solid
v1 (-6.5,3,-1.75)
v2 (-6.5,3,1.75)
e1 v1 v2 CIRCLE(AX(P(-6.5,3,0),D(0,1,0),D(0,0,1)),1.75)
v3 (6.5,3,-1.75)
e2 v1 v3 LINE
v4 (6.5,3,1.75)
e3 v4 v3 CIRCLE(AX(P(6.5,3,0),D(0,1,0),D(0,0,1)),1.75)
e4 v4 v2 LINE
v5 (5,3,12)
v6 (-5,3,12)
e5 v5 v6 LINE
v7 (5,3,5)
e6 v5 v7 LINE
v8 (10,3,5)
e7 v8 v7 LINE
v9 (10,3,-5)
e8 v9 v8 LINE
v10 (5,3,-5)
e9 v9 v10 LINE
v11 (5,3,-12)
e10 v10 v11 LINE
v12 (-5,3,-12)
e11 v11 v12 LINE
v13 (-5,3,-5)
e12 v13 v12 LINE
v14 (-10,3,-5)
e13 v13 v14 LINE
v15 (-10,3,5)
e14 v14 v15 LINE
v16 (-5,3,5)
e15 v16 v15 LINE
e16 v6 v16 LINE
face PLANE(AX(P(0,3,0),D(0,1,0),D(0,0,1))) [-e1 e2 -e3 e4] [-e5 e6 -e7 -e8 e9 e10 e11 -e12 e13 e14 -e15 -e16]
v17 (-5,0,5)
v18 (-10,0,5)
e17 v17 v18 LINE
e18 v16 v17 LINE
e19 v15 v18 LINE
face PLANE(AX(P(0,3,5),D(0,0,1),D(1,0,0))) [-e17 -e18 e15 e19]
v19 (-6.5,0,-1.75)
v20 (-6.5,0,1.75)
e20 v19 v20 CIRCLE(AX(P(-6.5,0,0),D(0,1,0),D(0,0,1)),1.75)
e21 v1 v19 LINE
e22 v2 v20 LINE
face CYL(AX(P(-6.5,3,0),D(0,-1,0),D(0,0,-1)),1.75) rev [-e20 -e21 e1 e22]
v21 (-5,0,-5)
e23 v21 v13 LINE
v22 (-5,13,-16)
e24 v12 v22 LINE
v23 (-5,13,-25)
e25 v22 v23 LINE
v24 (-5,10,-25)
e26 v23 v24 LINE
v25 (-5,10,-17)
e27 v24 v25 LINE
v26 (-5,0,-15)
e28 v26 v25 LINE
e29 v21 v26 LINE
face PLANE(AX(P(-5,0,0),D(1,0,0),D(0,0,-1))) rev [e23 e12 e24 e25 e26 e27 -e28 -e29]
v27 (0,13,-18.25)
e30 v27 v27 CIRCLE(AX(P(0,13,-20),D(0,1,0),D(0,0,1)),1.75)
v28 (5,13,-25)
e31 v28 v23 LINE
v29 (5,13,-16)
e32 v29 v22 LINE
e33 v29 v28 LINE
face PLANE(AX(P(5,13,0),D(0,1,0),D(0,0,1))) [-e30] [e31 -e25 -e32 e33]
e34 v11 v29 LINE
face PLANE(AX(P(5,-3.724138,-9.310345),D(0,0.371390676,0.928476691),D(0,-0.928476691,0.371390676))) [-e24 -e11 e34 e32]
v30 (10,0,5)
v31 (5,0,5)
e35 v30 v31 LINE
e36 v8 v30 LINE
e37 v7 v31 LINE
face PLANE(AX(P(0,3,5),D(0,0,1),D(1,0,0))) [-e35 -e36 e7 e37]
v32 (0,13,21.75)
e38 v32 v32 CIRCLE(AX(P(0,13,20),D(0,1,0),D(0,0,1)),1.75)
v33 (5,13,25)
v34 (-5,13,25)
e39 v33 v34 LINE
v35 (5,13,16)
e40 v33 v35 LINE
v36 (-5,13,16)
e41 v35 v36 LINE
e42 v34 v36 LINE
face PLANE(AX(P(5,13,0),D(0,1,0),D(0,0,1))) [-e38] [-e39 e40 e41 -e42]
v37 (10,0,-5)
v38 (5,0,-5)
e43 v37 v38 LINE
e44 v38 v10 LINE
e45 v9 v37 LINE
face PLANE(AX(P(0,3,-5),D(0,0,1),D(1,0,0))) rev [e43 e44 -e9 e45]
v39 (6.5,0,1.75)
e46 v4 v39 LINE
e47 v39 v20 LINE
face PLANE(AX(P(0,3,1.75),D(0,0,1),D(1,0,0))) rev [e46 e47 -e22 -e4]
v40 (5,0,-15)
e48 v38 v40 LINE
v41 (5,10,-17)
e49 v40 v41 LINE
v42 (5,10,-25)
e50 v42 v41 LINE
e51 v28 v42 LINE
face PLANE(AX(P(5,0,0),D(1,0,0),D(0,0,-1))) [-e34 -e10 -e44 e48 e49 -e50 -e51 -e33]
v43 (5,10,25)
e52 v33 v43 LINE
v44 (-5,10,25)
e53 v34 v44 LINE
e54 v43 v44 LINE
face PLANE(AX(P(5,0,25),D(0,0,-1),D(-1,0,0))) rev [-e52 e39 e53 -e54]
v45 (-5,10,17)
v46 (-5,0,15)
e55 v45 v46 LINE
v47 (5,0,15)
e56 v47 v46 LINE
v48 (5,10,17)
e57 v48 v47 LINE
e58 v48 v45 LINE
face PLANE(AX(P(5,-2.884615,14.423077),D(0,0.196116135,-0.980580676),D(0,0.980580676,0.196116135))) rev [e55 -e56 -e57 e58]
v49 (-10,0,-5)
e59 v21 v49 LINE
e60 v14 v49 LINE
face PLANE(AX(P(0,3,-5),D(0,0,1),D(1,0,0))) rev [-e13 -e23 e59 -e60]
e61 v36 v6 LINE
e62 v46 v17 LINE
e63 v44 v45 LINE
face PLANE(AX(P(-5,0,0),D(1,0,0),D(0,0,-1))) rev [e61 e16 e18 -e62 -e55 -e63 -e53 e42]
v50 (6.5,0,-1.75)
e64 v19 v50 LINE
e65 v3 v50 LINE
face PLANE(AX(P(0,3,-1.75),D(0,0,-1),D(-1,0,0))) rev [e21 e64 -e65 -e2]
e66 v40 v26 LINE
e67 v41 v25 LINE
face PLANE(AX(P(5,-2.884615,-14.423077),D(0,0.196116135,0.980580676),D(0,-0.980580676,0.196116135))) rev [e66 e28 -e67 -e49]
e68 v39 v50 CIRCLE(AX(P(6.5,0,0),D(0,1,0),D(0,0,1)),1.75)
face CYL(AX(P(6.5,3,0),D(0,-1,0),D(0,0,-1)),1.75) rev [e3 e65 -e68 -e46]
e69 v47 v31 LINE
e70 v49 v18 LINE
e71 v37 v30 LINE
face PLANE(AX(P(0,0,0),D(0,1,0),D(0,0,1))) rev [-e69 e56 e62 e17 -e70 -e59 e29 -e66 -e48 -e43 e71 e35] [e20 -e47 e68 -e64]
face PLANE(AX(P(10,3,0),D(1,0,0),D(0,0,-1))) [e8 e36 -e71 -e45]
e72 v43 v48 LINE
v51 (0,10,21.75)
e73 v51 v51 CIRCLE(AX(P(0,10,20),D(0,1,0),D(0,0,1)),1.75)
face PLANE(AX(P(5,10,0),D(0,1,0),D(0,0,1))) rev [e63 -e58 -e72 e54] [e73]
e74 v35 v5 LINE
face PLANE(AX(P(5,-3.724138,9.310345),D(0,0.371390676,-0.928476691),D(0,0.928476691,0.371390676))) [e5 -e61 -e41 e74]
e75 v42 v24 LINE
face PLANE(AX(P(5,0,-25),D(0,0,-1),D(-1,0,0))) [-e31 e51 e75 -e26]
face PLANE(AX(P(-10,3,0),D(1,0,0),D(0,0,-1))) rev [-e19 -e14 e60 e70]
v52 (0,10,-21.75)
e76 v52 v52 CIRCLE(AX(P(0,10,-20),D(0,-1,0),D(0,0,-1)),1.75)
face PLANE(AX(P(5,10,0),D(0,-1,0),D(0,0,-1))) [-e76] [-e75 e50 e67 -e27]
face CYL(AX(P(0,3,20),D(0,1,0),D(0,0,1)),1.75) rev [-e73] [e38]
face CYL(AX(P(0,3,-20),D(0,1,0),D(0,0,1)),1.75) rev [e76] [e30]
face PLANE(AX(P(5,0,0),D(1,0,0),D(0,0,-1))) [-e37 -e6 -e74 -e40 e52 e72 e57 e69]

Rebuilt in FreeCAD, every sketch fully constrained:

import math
import FreeCAD as App
import Part
import Sketcher
from FreeCAD import Vector

doc = App.newDocument("Part")
params = doc.addObject("Spreadsheet::Sheet", "Params")
for row, (alias, value) in enumerate([
    ("sketch1_width", "20 mm"),
    ("sketch1_width2", "13 mm"),
    ("sketch1_height", "10 mm"),
    ("sketch1_radius", "1.75 mm"),
    ("pad1_length", "3 mm"),
    ("sketch2_width", "3 mm"),
    ("sketch2_height", "8 mm"),
    ("sketch2_height2", "10 mm"),
    ("sketch2_height3", "7 mm"),
    ("sketch2_height4", "9 mm"),
    ("pad2_length", "10 mm"),
    ("sketch3_diameter", "3.5 mm"),
    ("pocket1_length", "10 mm"),
], start=1):
    params.set(f"A{row}", alias)
    params.set(f"B{row}", "=" + value)
    params.setAlias(f"B{row}", alias)

body = doc.addObject("PartDesign::Body", "Body")

sketch1 = body.newObject("Sketcher::SketchObject", "Sketch")
sketch1.AttachmentSupport = (doc.getObject("XZ_Plane"), [""])
sketch1.MapMode = "FlatFace"
sketch1.addGeometry(Part.LineSegment(Vector(-10, -5, 0), Vector(-10, 5, 0)), False)
sketch1.addGeometry(Part.LineSegment(Vector(-10, 5, 0), Vector(10, 5, 0)), False)
sketch1.addGeometry(Part.LineSegment(Vector(10, 5, 0), Vector(10, -5, 0)), False)
sketch1.addGeometry(Part.LineSegment(Vector(10, -5, 0), Vector(-10, -5, 0)), False)
sketch1.addGeometry(Part.LineSegment(Vector(6.5, 1.8, 0), Vector(-6.5, 1.8, 0)), False)
sketch1.addGeometry(Part.ArcOfCircle(Part.Circle(Vector(-6.5, 0, 0), Vector(0, 0, 1), 1.8), math.radians(90), math.radians(270)), False)
sketch1.addGeometry(Part.LineSegment(Vector(-6.5, -1.8, 0), Vector(6.5, -1.8, 0)), False)
sketch1.addGeometry(Part.ArcOfCircle(Part.Circle(Vector(6.5, 0, 0), Vector(0, 0, 1), 1.8), math.radians(-90), math.radians(0)), False)
sketch1.addGeometry(Part.ArcOfCircle(Part.Circle(Vector(6.5, 0, 0), Vector(0, 0, 1), 1.8), math.radians(0), math.radians(90)), False)
sketch1.addConstraint(Sketcher.Constraint("Coincident", 0, 2, 1, 1))
sketch1.addConstraint(Sketcher.Constraint("Coincident", 1, 2, 2, 1))
sketch1.addConstraint(Sketcher.Constraint("Coincident", 2, 2, 3, 1))
sketch1.addConstraint(Sketcher.Constraint("Coincident", 3, 2, 0, 1))
sketch1.addConstraint(Sketcher.Constraint("Tangent", 4, 2, 5, 1))
sketch1.addConstraint(Sketcher.Constraint("Tangent", 5, 2, 6, 1))
sketch1.addConstraint(Sketcher.Constraint("Tangent", 6, 2, 7, 1))
sketch1.addConstraint(Sketcher.Constraint("Tangent", 7, 2, 8, 1))
sketch1.addConstraint(Sketcher.Constraint("Tangent", 8, 2, 4, 1))
sketch1.addConstraint(Sketcher.Constraint("Vertical", 0))
sketch1.addConstraint(Sketcher.Constraint("Horizontal", 1))
sketch1.addConstraint(Sketcher.Constraint("Vertical", 2))
sketch1.addConstraint(Sketcher.Constraint("Horizontal", 3))
sketch1.addConstraint(Sketcher.Constraint("Horizontal", 4))
sketch1.addConstraint(Sketcher.Constraint("Horizontal", 6))
sketch1.addConstraint(Sketcher.Constraint("Equal", 5, 7))
sketch1.addConstraint(Sketcher.Constraint("Symmetric", 5, 3, 7, 3, -1, 1))
sketch1.addConstraint(Sketcher.Constraint("Symmetric", 0, 2, 2, 2, -1, 1))
sketch1.addConstraint(Sketcher.Constraint("PointOnObject", 7, 2, -1))
sketch1.addConstraint(Sketcher.Constraint("DistanceX", 1, 1, 1, 2, 20.0))
sketch1.addConstraint(Sketcher.Constraint("DistanceX", 4, 2, 4, 1, 13.0))
sketch1.addConstraint(Sketcher.Constraint("DistanceY", 0, 1, 0, 2, 10.0))
sketch1.addConstraint(Sketcher.Constraint("Radius", 5, 1.75))
sketch1.setExpression("Constraints[19]", "Params.sketch1_width")
sketch1.setExpression("Constraints[20]", "Params.sketch1_width2")
sketch1.setExpression("Constraints[21]", "Params.sketch1_height")
sketch1.setExpression("Constraints[22]", "Params.sketch1_radius")
pad1 = body.newObject("PartDesign::Pad", "Pad")
pad1.Profile = sketch1
pad1.setExpression("Length", "Params.pad1_length")
pad1.Reversed = True

sketch2 = body.newObject("Sketcher::SketchObject", "Sketch001")
sketch2.AttachmentSupport = (doc.getObject("YZ_Plane"), [""])
sketch2.MapMode = "FlatFace"
sketch2.addGeometry(Part.LineSegment(Vector(13, 25, 0), Vector(10, 25, 0)), False)
sketch2.addGeometry(Part.LineSegment(Vector(10, 25, 0), Vector(10, 17, 0)), False)
sketch2.addGeometry(Part.LineSegment(Vector(10, 17, 0), Vector(0, 15, 0)), False)
sketch2.addGeometry(Part.LineSegment(Vector(0, 15, 0), Vector(0, 5, 0)), False)
sketch2.addGeometry(Part.LineSegment(Vector(0, 5, 0), Vector(3, 5, 0)), False)
sketch2.addGeometry(Part.LineSegment(Vector(3, 5, 0), Vector(3, 12, 0)), False)
sketch2.addGeometry(Part.LineSegment(Vector(3, 12, 0), Vector(13, 16, 0)), False)
sketch2.addGeometry(Part.LineSegment(Vector(13, 16, 0), Vector(13, 25, 0)), False)
sketch2.addGeometry(Part.LineSegment(Vector(13, -25, 0), Vector(13, -16, 0)), False)
sketch2.addGeometry(Part.LineSegment(Vector(13, -16, 0), Vector(3, -12, 0)), False)
sketch2.addGeometry(Part.LineSegment(Vector(3, -12, 0), Vector(3, -5, 0)), False)
sketch2.addGeometry(Part.LineSegment(Vector(3, -5, 0), Vector(0, -5, 0)), False)
sketch2.addGeometry(Part.LineSegment(Vector(0, -5, 0), Vector(0, -15, 0)), False)
sketch2.addGeometry(Part.LineSegment(Vector(0, -15, 0), Vector(10, -17, 0)), False)
sketch2.addGeometry(Part.LineSegment(Vector(10, -17, 0), Vector(10, -25, 0)), False)
sketch2.addGeometry(Part.LineSegment(Vector(10, -25, 0), Vector(13, -25, 0)), False)
sketch2.addConstraint(Sketcher.Constraint("Coincident", 0, 2, 1, 1))
sketch2.addConstraint(Sketcher.Constraint("Coincident", 1, 2, 2, 1))
sketch2.addConstraint(Sketcher.Constraint("Coincident", 2, 2, 3, 1))
sketch2.addConstraint(Sketcher.Constraint("Coincident", 3, 2, 4, 1))
sketch2.addConstraint(Sketcher.Constraint("Coincident", 4, 2, 5, 1))
sketch2.addConstraint(Sketcher.Constraint("Coincident", 5, 2, 6, 1))
sketch2.addConstraint(Sketcher.Constraint("Coincident", 6, 2, 7, 1))
sketch2.addConstraint(Sketcher.Constraint("Coincident", 7, 2, 0, 1))
sketch2.addConstraint(Sketcher.Constraint("Coincident", 8, 2, 9, 1))
sketch2.addConstraint(Sketcher.Constraint("Coincident", 9, 2, 10, 1))
sketch2.addConstraint(Sketcher.Constraint("Coincident", 10, 2, 11, 1))
sketch2.addConstraint(Sketcher.Constraint("Coincident", 11, 2, 12, 1))
sketch2.addConstraint(Sketcher.Constraint("Coincident", 12, 2, 13, 1))
sketch2.addConstraint(Sketcher.Constraint("Coincident", 13, 2, 14, 1))
sketch2.addConstraint(Sketcher.Constraint("Coincident", 14, 2, 15, 1))
sketch2.addConstraint(Sketcher.Constraint("Coincident", 15, 2, 8, 1))
sketch2.addConstraint(Sketcher.Constraint("Horizontal", 0))
sketch2.addConstraint(Sketcher.Constraint("Vertical", 1))
sketch2.addConstraint(Sketcher.Constraint("Vertical", 3))
sketch2.addConstraint(Sketcher.Constraint("Horizontal", 4))
sketch2.addConstraint(Sketcher.Constraint("Vertical", 5))
sketch2.addConstraint(Sketcher.Constraint("Vertical", 7))
sketch2.addConstraint(Sketcher.Constraint("Vertical", 8))
sketch2.addConstraint(Sketcher.Constraint("Vertical", 10))
sketch2.addConstraint(Sketcher.Constraint("Horizontal", 11))
sketch2.addConstraint(Sketcher.Constraint("Vertical", 12))
sketch2.addConstraint(Sketcher.Constraint("Vertical", 14))
sketch2.addConstraint(Sketcher.Constraint("Horizontal", 15))
sketch2.addConstraint(Sketcher.Constraint("Symmetric", 3, 2, 11, 2, -1, 1))
sketch2.addConstraint(Sketcher.Constraint("Symmetric", 6, 2, 8, 2, -1))
sketch2.addConstraint(Sketcher.Constraint("Symmetric", 5, 2, 9, 2, -1))
sketch2.addConstraint(Sketcher.Constraint("Symmetric", 2, 2, 12, 2, -1))
sketch2.addConstraint(Sketcher.Constraint("Symmetric", 1, 2, 13, 2, -1))
sketch2.addConstraint(Sketcher.Constraint("Equal", 0, 4))
sketch2.addConstraint(Sketcher.Constraint("Equal", 7, 8))
sketch2.addConstraint(Sketcher.Constraint("DistanceX", 0, 2, 0, 1, 3.0))
sketch2.addConstraint(Sketcher.Constraint("DistanceY", 1, 2, 1, 1, 8.0))
sketch2.addConstraint(Sketcher.Constraint("DistanceY", 3, 2, 3, 1, 10.0))
sketch2.addConstraint(Sketcher.Constraint("DistanceY", 5, 1, 5, 2, 7.0))
sketch2.addConstraint(Sketcher.Constraint("DistanceY", 7, 1, 7, 2, 9.0))
sketch2.addConstraint(Sketcher.Constraint("DistanceX", -1, 1, 0, 2, 10.0))
sketch2.addConstraint(Sketcher.Constraint("DistanceY", -1, 1, 0, 2, 25.0))
sketch2.addConstraint(Sketcher.Constraint("DistanceY", -1, 1, 2, 2, 15.0))
sketch2.setExpression("Constraints[35]", "Params.sketch2_width")
sketch2.setExpression("Constraints[36]", "Params.sketch2_height")
sketch2.setExpression("Constraints[37]", "Params.sketch2_height2")
sketch2.setExpression("Constraints[38]", "Params.sketch2_height3")
sketch2.setExpression("Constraints[39]", "Params.sketch2_height4")
pad2 = body.newObject("PartDesign::Pad", "Pad001")
pad2.Profile = sketch2
pad2.setExpression("Length", "Params.pad2_length")
pad2.Midplane = True

sketch3 = body.newObject("Sketcher::SketchObject", "Sketch002")
sketch3.AttachmentSupport = (doc.getObject("XZ_Plane"), [""])
sketch3.MapMode = "FlatFace"
sketch3.AttachmentOffset = App.Placement(Vector(0, 0, -13), App.Rotation())
sketch3.addGeometry(Part.Circle(Vector(0, -20, 0), Vector(0, 0, 1), 1.8), False)
sketch3.addGeometry(Part.Circle(Vector(0, 20, 0), Vector(0, 0, 1), 1.8), False)
sketch3.addConstraint(Sketcher.Constraint("Equal", 0, 1))
sketch3.addConstraint(Sketcher.Constraint("Symmetric", 0, 3, 1, 3, -1, 1))
sketch3.addConstraint(Sketcher.Constraint("PointOnObject", 0, 3, -2))
sketch3.addConstraint(Sketcher.Constraint("Diameter", 0, 3.5))
sketch3.addConstraint(Sketcher.Constraint("DistanceY", 0, 3, -1, 1, 20.0))
sketch3.setExpression("Constraints[3]", "Params.sketch3_diameter")
pocket1 = body.newObject("PartDesign::Pocket", "Pocket")
pocket1.Profile = sketch3
pocket1.setExpression("Length", "Params.pocket1_length")
pocket1.Reversed = True

doc.recompute()
